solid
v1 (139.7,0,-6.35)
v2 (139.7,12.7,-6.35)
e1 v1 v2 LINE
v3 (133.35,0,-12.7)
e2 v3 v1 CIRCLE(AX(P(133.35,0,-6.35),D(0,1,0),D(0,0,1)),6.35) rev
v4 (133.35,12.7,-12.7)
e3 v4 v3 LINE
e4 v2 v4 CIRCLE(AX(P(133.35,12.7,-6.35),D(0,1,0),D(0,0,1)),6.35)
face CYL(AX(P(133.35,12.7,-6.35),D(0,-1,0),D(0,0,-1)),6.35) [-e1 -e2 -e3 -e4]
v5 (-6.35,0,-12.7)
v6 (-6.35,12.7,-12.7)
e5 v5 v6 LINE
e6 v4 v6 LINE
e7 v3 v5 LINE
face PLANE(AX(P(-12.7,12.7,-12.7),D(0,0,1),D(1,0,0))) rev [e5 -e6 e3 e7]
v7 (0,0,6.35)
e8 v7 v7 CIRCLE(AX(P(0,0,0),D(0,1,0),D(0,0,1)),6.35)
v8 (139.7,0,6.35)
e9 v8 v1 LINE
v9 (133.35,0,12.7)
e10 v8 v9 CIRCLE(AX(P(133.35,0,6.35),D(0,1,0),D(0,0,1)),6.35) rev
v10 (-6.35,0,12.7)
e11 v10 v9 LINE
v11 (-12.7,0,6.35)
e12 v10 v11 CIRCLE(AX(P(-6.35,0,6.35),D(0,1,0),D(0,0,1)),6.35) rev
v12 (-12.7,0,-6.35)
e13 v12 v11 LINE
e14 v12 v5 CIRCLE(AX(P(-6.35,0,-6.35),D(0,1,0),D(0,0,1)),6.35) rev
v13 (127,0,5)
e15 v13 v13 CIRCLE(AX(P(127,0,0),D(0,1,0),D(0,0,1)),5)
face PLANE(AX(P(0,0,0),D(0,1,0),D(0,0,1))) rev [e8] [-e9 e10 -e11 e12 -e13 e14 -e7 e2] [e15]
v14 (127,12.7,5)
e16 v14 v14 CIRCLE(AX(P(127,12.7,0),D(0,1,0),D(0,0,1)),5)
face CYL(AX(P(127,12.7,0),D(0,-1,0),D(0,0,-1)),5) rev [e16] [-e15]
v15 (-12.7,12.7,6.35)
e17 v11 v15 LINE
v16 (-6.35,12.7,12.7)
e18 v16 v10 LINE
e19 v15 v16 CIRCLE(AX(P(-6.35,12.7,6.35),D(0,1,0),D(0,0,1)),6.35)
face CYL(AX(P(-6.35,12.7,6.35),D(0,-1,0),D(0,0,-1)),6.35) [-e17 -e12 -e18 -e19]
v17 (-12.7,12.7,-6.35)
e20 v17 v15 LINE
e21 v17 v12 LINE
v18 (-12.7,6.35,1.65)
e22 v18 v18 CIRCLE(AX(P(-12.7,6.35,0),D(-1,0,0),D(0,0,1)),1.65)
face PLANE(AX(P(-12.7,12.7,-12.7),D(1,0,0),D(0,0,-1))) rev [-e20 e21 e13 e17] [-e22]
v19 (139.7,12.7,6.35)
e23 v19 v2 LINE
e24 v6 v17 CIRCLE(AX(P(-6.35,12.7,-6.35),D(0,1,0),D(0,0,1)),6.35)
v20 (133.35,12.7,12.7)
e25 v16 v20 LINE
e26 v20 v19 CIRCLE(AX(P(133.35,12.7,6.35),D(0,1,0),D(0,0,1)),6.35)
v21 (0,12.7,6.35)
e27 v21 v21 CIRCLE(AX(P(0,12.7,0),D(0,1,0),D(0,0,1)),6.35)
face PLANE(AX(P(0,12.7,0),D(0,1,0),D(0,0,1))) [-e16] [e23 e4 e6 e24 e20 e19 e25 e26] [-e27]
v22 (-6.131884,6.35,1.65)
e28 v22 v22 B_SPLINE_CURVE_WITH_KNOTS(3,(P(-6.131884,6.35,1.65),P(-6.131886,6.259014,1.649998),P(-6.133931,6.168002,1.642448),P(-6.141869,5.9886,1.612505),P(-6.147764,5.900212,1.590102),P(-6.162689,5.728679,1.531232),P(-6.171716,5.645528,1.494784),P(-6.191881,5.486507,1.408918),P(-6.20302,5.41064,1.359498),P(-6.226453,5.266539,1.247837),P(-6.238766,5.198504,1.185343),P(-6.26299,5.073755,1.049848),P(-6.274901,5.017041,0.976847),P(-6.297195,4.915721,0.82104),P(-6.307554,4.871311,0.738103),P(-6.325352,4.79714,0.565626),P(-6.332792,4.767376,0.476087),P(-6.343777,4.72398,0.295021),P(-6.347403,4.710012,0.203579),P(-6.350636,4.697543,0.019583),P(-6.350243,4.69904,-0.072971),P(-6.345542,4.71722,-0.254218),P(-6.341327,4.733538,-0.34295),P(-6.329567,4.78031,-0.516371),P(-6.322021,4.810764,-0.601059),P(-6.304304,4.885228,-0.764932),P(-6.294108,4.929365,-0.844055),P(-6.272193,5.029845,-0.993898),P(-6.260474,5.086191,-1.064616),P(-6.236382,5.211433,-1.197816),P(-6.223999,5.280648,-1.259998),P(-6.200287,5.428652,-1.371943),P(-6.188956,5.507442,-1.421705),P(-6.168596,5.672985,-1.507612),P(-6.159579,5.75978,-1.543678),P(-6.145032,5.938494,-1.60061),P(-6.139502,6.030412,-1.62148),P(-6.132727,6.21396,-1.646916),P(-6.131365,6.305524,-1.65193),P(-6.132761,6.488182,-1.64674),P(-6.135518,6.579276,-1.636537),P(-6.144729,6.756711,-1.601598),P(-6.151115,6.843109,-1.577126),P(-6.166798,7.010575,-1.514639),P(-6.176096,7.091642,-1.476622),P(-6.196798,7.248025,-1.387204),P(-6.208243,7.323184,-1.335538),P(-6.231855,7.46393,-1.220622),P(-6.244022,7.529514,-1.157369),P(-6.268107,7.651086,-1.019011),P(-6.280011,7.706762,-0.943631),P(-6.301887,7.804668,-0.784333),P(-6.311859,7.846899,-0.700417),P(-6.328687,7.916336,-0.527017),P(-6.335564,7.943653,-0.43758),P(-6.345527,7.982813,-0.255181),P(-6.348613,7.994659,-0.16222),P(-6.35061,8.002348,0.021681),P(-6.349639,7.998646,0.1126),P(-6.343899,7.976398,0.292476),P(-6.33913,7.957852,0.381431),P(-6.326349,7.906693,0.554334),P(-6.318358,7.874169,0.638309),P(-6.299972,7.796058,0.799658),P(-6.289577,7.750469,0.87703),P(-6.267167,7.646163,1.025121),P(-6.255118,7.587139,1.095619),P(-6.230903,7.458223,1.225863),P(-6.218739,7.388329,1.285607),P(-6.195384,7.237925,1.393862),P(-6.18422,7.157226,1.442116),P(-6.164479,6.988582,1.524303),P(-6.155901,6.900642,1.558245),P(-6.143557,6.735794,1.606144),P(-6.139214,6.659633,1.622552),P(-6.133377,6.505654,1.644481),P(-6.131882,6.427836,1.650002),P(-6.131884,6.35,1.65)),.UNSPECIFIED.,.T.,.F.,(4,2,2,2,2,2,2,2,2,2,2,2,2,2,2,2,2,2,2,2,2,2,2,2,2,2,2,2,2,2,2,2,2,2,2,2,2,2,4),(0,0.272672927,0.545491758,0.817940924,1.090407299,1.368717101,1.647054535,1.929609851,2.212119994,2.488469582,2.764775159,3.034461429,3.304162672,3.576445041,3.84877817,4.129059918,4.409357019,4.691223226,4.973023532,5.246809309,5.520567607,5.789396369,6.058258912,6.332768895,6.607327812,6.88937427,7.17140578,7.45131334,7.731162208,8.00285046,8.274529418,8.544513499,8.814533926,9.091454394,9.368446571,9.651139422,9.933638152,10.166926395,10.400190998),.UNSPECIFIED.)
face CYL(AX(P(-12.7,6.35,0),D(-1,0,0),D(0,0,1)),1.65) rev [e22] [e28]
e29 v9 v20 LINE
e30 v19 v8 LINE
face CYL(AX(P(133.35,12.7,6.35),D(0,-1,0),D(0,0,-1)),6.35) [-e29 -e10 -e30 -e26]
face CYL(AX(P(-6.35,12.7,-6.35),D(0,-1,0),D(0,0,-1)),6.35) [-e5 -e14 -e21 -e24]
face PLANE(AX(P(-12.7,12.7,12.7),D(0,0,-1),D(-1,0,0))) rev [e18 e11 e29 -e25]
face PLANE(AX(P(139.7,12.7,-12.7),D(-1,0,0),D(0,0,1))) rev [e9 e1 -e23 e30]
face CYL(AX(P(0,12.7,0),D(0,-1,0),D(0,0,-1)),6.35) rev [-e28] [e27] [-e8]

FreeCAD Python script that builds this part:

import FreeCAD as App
import Part
import Sketcher

V = App.Vector
Q = App.Units.Quantity


def edges_at(feature, points):
    """Names of the edges that pass closest to the given points."""
    edges = feature.Shape.Edges
    near = lambda p: min(range(len(edges)), key=lambda i: edges[i].distToShape(Part.Vertex(*p))[0])
    return sorted({f"Edge{near(p) + 1}" for p in points})

doc = App.newDocument("Part")
params = doc.addObject("Spreadsheet::Sheet", "Params")
for row, (alias, value) in enumerate([
    ("sketch1_diameter", "0.5 in"),
    ("sketch1_width", "6 in"),
    ("sketch1_height", "1 in"),
    ("pad1_length", "0.5 in"),
    ("fillet_radius", "0.25 in"),
], start=1):
    params.set(f"A{row}", alias)
    params.set(f"B{row}", "=" + value)
    params.setAlias(f"B{row}", alias)

body = doc.addObject("PartDesign::Body", "Body")

sketch1 = doc.addObject("Sketcher::SketchObject", "Sketch")
body.addObject(sketch1)
sketch1.AttachmentSupport = (doc.XZ_Plane, [""])
sketch1.MapMode = "FlatFace"
sketch1.addGeometry([
    Part.LineSegment(V(-12.7, -12.7, 0), V(-12.7, 12.7, 0)),
    Part.LineSegment(V(-12.7, 12.7, 0), V(139.7, 12.7, 0)),
    Part.LineSegment(V(139.7, 12.7, 0), V(139.7, -12.7, 0)),
    Part.LineSegment(V(139.7, -12.7, 0), V(-12.7, -12.7, 0)),
    Part.Circle(V(0, 0, 0), V(0, 0, 1), 6.35),
    Part.Circle(V(127, 0, 0), V(0, 0, 1), 5),
], False)
sketch1.addConstraint([
    Sketcher.Constraint("Coincident", 0, 2, 1, 1),
    Sketcher.Constraint("Coincident", 1, 2, 2, 1),
    Sketcher.Constraint("Coincident", 2, 2, 3, 1),
    Sketcher.Constraint("Coincident", 3, 2, 0, 1),
    Sketcher.Constraint("Vertical", 0),
    Sketcher.Constraint("Horizontal", 1),
    Sketcher.Constraint("Vertical", 2),
    Sketcher.Constraint("Horizontal", 3),
    Sketcher.Constraint("Coincident", 4, 3, -1, 1),
    Sketcher.Constraint("PointOnObject", 5, 3, -1),
    Sketcher.Constraint("Diameter", 4, Q("0.5 in")),
    Sketcher.Constraint("DistanceX", 1, 1, 1, 2, Q("6 in")),
    Sketcher.Constraint("DistanceY", 0, 1, 0, 2, Q("1 in")),
    Sketcher.Constraint("DistanceX", -1, 1, 5, 3, Q("5 in")),
    Sketcher.Constraint("DistanceX", 0, 2, -1, 1, Q("0.5 in")),
    Sketcher.Constraint("DistanceY", -1, 1, 0, 2, Q("0.5 in")),
    Sketcher.Constraint("Diameter", 5, 10.0),
])
sketch1.setExpression("Constraints[10]", "Params.sketch1_diameter")
sketch1.setExpression("Constraints[11]", "Params.sketch1_width")
sketch1.setExpression("Constraints[12]", "Params.sketch1_height")
pad1 = doc.addObject("PartDesign::Pad", "Pad")
body.addObject(pad1)
pad1.Profile = sketch1
pad1.setExpression("Length", "Params.pad1_length")
pad1.Reversed = True
doc.recompute()

fillet = doc.addObject("PartDesign::Fillet", "Fillet")
body.addObject(fillet)
fillet.Base = (pad1, edges_at(pad1, [
    (-12.7, 6.35, -12.7),
    (139.7, 6.35, -12.7),
    (139.7, 6.35, 12.7),
    (-12.7, 6.35, 12.7),
]))
fillet.setExpression("Radius", "Params.fillet_radius")

sketch2 = doc.addObject("Sketcher::SketchObject", "Sketch001")
body.addObject(sketch2)
sketch2.AttachmentSupport = (doc.YZ_Plane, [""])
sketch2.MapMode = "FlatFace"
sketch2.AttachmentOffset = App.Placement(V(0, 0, -0.5 * 25.4), App.Rotation())
sketch2.addGeometry(Part.Circle(V(6.35, 0, 0), V(0, 0, 1), 1.65), False)
sketch2.addConstraint([
    Sketcher.Constraint("PointOnObject", 0, 3, -1),
    Sketcher.Constraint("Diameter", 0, 3.3),
    Sketcher.Constraint("DistanceX", -1, 1, 0, 3, Q("0.25 in")),
])
pocket1 = doc.addObject("PartDesign::Pocket", "Pocket")
body.addObject(pocket1)
pocket1.Profile = sketch2
pocket1.Type = "UpToFirst"
pocket1.Reversed = True

doc.recompute()
